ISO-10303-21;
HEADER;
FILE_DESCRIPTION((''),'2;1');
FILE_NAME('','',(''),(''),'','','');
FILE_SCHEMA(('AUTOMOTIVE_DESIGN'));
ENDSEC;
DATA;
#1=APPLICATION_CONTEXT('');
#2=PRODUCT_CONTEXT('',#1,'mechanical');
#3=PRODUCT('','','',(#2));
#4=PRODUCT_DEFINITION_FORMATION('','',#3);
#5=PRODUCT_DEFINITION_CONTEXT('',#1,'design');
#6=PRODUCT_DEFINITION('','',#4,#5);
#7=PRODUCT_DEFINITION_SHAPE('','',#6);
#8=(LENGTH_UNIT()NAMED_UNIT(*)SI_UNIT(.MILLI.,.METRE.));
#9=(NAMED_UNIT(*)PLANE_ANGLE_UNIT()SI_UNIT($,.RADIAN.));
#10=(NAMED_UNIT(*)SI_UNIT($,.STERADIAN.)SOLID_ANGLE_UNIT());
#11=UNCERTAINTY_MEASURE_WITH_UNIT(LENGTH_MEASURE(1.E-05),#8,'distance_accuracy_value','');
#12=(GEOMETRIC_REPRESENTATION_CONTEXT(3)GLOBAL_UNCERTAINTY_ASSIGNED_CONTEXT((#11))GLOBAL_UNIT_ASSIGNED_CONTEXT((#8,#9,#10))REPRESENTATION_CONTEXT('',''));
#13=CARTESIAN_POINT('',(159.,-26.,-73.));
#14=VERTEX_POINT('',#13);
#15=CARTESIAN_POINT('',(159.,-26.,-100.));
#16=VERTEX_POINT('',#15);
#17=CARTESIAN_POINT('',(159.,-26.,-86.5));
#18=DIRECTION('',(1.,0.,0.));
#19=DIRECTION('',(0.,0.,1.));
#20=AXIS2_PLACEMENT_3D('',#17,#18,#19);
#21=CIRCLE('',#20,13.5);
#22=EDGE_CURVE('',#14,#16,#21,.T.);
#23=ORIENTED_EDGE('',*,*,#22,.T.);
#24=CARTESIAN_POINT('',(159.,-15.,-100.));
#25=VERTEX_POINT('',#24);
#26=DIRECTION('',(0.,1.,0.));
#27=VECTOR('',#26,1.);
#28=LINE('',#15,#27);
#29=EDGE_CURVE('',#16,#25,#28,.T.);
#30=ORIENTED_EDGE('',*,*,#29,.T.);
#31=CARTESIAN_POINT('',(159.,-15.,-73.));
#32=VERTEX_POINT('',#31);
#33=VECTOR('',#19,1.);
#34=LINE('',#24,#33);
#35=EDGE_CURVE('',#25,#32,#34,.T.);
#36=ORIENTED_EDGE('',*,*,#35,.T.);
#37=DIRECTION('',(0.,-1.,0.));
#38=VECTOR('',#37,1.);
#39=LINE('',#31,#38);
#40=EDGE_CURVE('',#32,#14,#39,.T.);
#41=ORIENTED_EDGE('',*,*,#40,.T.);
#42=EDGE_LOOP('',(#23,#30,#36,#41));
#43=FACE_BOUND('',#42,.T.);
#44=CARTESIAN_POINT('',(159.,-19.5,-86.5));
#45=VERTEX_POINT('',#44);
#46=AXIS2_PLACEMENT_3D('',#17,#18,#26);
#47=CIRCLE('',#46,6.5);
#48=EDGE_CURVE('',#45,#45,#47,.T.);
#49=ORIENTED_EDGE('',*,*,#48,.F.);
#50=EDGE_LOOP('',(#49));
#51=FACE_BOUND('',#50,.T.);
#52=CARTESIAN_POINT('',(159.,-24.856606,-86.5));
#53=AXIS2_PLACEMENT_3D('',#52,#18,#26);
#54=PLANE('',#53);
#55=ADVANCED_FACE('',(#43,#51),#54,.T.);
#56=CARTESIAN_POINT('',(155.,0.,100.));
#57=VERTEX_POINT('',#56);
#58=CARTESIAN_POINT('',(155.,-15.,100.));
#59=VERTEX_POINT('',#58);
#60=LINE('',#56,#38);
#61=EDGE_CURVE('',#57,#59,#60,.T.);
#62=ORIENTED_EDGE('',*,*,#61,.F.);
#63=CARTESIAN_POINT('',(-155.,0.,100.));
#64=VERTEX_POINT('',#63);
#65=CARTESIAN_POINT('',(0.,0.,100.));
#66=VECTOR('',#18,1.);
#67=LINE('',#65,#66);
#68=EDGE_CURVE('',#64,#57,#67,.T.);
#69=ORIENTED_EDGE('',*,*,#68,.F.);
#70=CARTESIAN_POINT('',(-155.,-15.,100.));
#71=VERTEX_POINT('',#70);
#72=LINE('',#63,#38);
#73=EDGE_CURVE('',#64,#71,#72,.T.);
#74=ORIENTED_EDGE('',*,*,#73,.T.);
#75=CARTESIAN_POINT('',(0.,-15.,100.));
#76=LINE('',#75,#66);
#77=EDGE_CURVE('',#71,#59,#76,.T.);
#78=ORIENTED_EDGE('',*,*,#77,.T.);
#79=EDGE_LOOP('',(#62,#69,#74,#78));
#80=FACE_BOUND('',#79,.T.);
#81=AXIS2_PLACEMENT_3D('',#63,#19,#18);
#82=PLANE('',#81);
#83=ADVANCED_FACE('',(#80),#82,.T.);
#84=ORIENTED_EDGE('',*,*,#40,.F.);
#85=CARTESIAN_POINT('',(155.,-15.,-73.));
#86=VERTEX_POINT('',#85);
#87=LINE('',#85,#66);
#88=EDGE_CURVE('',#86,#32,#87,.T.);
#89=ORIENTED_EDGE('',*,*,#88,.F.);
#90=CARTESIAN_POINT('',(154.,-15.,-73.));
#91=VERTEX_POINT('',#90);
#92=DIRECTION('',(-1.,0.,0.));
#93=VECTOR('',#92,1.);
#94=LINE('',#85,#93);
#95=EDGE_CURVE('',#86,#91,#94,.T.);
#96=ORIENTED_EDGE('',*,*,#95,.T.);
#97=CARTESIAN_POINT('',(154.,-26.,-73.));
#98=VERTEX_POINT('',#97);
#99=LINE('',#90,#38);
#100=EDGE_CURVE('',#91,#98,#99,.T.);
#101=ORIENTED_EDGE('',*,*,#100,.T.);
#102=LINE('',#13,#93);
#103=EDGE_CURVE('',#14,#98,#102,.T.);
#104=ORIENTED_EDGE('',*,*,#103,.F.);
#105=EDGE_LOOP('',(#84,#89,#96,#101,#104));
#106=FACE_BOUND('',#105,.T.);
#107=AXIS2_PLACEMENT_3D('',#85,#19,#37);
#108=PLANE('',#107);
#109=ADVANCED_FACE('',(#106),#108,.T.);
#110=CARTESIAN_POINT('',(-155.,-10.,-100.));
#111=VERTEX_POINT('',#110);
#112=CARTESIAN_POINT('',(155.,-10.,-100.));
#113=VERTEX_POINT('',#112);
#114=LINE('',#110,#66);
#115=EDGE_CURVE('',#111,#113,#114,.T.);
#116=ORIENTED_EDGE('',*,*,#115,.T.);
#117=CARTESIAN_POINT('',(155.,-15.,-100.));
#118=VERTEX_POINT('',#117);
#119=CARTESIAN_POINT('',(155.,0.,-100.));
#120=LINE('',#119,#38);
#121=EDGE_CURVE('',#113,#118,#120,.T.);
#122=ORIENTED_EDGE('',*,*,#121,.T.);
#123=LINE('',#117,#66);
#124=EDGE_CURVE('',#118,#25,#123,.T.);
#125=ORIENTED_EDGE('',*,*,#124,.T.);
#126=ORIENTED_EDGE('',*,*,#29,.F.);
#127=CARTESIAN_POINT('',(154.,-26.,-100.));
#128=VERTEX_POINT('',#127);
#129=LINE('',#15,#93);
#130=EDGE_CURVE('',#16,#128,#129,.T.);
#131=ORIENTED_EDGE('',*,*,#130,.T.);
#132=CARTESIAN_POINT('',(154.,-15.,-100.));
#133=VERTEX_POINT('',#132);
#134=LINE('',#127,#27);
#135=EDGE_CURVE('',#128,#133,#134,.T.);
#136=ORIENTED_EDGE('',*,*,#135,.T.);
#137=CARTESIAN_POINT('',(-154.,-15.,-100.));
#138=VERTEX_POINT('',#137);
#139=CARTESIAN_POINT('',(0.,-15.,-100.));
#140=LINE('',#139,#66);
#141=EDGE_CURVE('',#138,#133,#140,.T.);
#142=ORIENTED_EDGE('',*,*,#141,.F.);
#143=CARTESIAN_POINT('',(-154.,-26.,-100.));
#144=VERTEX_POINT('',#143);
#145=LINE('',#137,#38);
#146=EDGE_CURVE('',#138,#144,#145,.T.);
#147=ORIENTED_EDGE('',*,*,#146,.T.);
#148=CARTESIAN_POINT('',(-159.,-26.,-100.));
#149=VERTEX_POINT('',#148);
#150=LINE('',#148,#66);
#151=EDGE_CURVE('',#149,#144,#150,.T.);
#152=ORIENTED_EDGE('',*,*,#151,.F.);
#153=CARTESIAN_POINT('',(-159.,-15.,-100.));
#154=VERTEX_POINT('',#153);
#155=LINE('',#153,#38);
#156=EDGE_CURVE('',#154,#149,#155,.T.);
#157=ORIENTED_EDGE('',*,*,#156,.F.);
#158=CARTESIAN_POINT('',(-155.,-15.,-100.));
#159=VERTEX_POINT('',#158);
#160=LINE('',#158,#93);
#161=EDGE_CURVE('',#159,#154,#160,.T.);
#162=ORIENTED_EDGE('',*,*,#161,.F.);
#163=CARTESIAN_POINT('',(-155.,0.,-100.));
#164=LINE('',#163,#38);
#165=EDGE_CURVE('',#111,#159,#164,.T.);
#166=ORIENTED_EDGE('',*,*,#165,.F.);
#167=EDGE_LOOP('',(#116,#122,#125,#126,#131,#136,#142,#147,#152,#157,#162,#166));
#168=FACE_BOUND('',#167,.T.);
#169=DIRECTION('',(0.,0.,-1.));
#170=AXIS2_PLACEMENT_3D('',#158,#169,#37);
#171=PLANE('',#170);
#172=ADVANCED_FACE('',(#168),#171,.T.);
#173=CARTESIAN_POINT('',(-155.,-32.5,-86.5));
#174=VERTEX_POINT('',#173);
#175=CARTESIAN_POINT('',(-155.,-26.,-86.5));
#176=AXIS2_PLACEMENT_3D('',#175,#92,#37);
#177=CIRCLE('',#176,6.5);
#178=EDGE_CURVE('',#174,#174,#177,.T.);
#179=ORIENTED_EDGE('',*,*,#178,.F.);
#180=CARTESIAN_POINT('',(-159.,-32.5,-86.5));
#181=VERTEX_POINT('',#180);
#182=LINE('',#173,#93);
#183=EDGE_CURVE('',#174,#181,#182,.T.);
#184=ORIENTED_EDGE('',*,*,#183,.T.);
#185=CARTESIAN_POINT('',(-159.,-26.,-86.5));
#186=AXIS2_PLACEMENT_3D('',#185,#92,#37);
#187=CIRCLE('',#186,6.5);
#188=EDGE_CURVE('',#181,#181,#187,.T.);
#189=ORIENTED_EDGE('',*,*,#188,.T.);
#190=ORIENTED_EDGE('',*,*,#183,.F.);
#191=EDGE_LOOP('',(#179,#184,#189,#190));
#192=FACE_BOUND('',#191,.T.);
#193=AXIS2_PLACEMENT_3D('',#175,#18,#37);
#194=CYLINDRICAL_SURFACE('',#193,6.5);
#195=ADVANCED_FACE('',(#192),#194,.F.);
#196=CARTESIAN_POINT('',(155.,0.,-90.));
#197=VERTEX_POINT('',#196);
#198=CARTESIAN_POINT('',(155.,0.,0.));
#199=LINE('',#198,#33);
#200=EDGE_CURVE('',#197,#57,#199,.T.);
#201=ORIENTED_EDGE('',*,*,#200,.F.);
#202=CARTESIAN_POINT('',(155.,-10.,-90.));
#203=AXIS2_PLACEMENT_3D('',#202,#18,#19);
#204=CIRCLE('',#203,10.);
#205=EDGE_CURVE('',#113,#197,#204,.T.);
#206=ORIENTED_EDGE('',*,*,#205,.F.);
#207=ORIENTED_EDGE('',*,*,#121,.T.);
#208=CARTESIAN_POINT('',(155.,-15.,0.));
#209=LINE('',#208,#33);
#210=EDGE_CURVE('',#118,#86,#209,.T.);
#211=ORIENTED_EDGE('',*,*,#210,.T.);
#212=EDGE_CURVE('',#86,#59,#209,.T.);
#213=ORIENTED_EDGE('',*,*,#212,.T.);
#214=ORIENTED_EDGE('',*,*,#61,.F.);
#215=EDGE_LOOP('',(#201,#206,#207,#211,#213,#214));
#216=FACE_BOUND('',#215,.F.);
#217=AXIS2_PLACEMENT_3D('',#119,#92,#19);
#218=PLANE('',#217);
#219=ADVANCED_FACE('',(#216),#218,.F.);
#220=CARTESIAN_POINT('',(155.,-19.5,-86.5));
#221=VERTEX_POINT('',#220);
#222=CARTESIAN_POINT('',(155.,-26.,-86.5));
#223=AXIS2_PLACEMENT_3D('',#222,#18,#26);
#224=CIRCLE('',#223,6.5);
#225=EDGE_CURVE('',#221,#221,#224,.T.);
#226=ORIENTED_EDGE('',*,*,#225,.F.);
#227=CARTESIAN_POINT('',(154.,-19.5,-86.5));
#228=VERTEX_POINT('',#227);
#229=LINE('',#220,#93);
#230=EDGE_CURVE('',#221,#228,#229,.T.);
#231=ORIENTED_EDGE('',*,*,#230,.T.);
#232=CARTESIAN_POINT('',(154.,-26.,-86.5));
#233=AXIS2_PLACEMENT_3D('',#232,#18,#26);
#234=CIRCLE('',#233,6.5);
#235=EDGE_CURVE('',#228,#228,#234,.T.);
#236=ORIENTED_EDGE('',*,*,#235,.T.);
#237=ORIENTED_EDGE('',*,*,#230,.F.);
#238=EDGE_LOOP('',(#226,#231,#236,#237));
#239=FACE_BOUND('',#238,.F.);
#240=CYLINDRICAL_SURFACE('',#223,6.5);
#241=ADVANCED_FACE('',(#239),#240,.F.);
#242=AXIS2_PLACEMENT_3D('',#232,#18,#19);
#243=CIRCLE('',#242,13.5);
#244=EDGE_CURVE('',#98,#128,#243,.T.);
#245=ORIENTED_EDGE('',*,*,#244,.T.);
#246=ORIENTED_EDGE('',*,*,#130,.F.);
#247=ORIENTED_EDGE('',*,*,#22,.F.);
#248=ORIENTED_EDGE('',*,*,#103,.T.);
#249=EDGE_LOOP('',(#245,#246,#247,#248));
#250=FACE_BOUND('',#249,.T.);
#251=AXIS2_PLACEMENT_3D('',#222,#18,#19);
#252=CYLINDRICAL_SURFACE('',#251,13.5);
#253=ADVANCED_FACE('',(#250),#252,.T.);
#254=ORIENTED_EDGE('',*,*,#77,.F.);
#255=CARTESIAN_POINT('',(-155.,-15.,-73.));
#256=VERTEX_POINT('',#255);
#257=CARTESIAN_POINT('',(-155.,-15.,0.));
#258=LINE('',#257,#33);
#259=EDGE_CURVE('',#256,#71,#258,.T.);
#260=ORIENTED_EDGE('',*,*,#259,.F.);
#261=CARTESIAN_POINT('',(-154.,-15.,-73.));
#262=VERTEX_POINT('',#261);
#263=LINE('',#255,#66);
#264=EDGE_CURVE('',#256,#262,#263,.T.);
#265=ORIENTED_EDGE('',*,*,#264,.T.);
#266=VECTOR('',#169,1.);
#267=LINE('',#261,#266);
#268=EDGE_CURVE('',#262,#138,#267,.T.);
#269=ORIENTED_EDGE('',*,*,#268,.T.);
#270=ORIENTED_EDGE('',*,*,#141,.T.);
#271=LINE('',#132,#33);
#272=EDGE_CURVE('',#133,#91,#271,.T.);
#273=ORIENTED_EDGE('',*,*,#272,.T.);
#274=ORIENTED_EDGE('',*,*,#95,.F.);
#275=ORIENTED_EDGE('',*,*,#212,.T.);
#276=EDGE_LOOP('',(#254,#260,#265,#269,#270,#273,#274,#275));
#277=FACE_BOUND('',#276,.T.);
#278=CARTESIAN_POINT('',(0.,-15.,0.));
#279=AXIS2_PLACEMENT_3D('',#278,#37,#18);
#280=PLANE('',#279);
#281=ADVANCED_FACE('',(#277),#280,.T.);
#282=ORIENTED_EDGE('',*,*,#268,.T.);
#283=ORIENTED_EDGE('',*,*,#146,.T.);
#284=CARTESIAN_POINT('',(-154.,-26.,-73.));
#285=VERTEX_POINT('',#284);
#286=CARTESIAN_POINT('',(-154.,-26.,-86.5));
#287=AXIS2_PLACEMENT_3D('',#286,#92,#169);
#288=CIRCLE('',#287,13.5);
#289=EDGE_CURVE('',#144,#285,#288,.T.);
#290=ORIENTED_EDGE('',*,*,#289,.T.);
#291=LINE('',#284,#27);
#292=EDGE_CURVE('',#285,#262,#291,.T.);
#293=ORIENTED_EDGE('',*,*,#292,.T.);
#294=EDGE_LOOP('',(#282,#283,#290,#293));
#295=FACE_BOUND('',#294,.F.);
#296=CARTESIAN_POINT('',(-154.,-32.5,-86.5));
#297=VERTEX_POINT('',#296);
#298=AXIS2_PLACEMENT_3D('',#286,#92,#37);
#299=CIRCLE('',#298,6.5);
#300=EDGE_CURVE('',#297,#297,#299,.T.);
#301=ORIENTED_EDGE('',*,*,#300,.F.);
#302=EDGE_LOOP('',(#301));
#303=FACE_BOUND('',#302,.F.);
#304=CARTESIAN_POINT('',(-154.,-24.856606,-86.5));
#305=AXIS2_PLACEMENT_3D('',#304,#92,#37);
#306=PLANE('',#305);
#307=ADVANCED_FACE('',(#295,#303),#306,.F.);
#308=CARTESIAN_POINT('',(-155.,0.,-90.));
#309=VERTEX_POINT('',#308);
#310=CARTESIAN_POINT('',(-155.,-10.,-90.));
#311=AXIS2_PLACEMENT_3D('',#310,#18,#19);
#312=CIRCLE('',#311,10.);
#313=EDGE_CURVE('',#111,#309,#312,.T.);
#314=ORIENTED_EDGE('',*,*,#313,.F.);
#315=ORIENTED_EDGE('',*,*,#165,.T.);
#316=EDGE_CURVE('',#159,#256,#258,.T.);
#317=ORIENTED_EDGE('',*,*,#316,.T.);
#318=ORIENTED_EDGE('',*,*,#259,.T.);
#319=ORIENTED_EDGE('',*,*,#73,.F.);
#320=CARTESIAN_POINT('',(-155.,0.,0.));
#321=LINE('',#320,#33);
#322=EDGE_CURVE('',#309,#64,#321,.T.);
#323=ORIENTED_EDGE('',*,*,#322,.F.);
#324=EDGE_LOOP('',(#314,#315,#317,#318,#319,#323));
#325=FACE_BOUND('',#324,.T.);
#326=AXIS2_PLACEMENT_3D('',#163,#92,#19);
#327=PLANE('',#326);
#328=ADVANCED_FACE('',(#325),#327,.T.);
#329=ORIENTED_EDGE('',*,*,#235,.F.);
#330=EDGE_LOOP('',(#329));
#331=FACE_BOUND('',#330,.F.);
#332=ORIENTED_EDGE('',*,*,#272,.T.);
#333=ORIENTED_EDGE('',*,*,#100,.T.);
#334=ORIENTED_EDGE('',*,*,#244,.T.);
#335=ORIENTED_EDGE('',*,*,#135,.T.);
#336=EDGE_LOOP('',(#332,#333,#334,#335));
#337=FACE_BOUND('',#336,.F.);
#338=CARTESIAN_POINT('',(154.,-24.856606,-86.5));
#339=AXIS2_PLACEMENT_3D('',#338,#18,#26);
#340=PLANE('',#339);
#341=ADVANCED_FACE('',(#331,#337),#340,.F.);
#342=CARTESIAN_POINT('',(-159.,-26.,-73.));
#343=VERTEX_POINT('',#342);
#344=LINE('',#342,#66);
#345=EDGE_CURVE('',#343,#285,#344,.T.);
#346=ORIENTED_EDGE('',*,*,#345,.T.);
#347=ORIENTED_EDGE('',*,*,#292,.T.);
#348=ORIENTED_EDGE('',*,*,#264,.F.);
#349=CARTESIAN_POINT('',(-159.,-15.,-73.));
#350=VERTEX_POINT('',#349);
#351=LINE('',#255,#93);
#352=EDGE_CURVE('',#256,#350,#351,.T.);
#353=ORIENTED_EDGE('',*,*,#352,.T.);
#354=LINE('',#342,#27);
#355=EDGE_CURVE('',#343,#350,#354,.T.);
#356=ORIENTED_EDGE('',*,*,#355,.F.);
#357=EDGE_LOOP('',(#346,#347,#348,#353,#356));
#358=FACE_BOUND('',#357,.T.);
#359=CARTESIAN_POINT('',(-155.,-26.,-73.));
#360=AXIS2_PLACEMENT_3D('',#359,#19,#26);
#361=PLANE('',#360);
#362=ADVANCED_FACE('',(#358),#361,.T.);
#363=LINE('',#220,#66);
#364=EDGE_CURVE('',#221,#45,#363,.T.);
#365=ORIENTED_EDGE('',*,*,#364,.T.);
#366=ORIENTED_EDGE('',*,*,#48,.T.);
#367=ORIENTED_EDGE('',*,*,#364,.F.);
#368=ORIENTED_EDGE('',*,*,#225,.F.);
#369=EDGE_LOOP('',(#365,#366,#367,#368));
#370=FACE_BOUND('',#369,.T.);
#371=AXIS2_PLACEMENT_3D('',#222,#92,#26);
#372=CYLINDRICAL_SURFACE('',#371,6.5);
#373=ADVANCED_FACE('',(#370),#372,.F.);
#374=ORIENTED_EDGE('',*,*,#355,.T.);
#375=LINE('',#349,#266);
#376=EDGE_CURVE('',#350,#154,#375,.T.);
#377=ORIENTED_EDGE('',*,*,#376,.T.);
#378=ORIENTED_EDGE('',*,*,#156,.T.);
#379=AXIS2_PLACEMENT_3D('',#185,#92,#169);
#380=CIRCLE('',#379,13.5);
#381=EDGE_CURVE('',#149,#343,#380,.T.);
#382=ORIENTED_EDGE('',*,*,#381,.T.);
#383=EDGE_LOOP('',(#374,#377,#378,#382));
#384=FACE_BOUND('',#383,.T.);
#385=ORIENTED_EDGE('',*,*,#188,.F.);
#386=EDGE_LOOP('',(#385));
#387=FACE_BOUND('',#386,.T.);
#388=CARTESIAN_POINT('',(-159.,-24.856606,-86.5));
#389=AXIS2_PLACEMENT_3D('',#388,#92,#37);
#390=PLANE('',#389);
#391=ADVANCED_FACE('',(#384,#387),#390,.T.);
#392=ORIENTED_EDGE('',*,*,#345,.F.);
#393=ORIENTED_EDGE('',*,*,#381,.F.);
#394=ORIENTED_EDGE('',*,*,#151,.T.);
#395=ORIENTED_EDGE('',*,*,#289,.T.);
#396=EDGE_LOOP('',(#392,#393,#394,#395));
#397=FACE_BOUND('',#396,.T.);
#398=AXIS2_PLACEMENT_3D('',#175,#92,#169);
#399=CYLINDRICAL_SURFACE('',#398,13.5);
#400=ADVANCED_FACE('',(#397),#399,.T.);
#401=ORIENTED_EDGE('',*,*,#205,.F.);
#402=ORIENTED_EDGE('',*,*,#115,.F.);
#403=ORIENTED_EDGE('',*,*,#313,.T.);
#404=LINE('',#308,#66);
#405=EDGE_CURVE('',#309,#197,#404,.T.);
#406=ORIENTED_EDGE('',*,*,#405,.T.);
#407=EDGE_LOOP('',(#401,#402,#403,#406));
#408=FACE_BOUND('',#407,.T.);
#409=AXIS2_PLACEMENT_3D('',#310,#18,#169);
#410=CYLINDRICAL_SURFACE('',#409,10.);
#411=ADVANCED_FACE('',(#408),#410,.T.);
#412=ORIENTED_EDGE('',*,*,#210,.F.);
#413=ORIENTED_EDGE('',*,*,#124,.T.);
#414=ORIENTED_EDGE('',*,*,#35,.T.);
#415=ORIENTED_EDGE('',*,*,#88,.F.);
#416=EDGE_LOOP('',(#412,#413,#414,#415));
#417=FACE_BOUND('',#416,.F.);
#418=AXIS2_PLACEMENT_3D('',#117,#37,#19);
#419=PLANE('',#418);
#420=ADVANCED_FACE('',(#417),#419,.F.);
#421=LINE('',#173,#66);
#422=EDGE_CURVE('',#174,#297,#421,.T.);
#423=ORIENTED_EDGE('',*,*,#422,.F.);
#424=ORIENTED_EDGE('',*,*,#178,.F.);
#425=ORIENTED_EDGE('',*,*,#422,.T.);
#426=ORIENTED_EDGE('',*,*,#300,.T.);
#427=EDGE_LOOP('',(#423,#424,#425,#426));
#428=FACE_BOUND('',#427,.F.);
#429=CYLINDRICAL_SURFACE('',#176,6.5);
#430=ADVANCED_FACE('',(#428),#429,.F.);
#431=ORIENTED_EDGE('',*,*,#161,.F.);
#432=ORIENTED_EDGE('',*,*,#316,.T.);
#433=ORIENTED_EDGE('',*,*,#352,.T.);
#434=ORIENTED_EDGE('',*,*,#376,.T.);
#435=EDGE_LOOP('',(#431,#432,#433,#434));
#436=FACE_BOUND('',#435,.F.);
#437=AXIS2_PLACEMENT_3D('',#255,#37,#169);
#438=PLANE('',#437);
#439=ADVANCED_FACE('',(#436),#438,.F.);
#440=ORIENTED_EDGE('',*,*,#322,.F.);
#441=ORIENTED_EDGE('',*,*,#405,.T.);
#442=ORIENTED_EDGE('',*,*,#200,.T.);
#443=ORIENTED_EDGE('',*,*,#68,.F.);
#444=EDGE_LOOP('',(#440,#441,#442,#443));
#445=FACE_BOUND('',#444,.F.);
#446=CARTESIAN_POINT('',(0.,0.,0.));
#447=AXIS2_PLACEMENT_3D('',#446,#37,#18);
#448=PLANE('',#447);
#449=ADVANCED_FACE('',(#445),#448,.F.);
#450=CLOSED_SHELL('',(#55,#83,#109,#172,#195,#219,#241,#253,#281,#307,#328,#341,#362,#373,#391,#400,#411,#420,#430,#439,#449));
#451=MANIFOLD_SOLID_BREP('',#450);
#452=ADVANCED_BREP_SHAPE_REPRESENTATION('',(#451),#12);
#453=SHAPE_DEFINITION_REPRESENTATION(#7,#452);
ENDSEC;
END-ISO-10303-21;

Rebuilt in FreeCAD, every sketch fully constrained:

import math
import FreeCAD as App
import Part
import Sketcher
from FreeCAD import Vector


def edges_at(feature, points):
    """Names of the edges that pass closest to the given points."""
    edges = feature.Shape.Edges
    near = lambda p: min(range(len(edges)), key=lambda i: edges[i].distToShape(Part.Vertex(*p))[0])
    return sorted({f"Edge{near(p) + 1}" for p in points})

doc = App.newDocument("Part")
params = doc.addObject("Spreadsheet::Sheet", "Params")
for row, (alias, value) in enumerate([
    ("sketch1_width", "310 mm"),
    ("sketch1_height", "200 mm"),
    ("pad1_length", "15 mm"),
    ("fillet_radius", "10 mm"),
    ("sketch2_diameter", "13 mm"),
    ("sketch2_radius", "13.5 mm"),
    ("sketch2_width", "11 mm"),
    ("pad2_length", "4 mm"),
    ("pad2_length2", "1 mm"),
    ("sketch3_diameter", "13 mm"),
    ("sketch3_radius", "13.5 mm"),
    ("sketch3_width", "11 mm"),
    ("pad3_length", "4 mm"),
    ("pad3_length2", "1 mm"),
], start=1):
    params.set(f"A{row}", alias)
    params.set(f"B{row}", "=" + value)
    params.setAlias(f"B{row}", alias)

body = doc.addObject("PartDesign::Body", "Body")

# Sketch on XZ plane
sketch1 = body.newObject("Sketcher::SketchObject", "Sketch")
sketch1.AttachmentSupport = (doc.getObject("XZ_Plane"), [""])
sketch1.MapMode = "FlatFace"
sketch1.addGeometry([
    Part.LineSegment(Vector(-155, 100, 0), Vector(-155, -100, 0)),
    Part.LineSegment(Vector(-155, -100, 0), Vector(155, -100, 0)),
    Part.LineSegment(Vector(155, -100, 0), Vector(155, 100, 0)),
    Part.LineSegment(Vector(155, 100, 0), Vector(-155, 100, 0)),
], False)
sketch1.addConstraint([
    Sketcher.Constraint("Coincident", 0, 2, 1, 1),
    Sketcher.Constraint("Coincident", 1, 2, 2, 1),
    Sketcher.Constraint("Coincident", 2, 2, 3, 1),
    Sketcher.Constraint("Coincident", 3, 2, 0, 1),
    Sketcher.Constraint("Vertical", 0),
    Sketcher.Constraint("Horizontal", 1),
    Sketcher.Constraint("Vertical", 2),
    Sketcher.Constraint("Horizontal", 3),
    Sketcher.Constraint("Symmetric", 0, 2, 2, 2, -1, 1),
    Sketcher.Constraint("DistanceX", 1, 1, 1, 2, 310.0),
    Sketcher.Constraint("DistanceY", 0, 2, 0, 1, 200.0),
])
sketch1.setExpression("Constraints[9]", "Params.sketch1_width")
sketch1.setExpression("Constraints[10]", "Params.sketch1_height")
pad1 = body.newObject("PartDesign::Pad", "Pad")
pad1.Profile = sketch1
pad1.setExpression("Length", "Params.pad1_length")
doc.recompute()

fillet = body.newObject("PartDesign::Fillet", "Fillet")
fillet.Base = (pad1, edges_at(pad1, [(0, 0, -100)]))
fillet.setExpression("Radius", "Params.fillet_radius")

# Sketch on YZ plane
sketch2 = body.newObject("Sketcher::SketchObject", "Sketch001")
sketch2.AttachmentSupport = (doc.getObject("YZ_Plane"), [""])
sketch2.MapMode = "FlatFace"
sketch2.AttachmentOffset = App.Placement(Vector(0, 0, 155), App.Rotation())
sketch2.addGeometry([
    Part.LineSegment(Vector(-26, -100, 0), Vector(-15, -100, 0)),  # 0
    Part.LineSegment(Vector(-15, -100, 0), Vector(-15, -73, 0)),  # 1
    Part.LineSegment(Vector(-15, -73, 0), Vector(-26, -73, 0)),  # 2
    Part.ArcOfCircle(Part.Circle(Vector(-26, -86.5, 0), Vector(0, 0, 1), 13.5), math.radians(90), math.radians(270)),  # 3
    Part.Circle(Vector(-26, -86.5, 0), Vector(0, 0, 1), 6.5),  # 4
], False)
sketch2.addConstraint([
    Sketcher.Constraint("Coincident", 0, 2, 1, 1),
    Sketcher.Constraint("Coincident", 1, 2, 2, 1),
    Sketcher.Constraint("Tangent", 2, 2, 3, 1),
    Sketcher.Constraint("Tangent", 3, 2, 0, 1),
    Sketcher.Constraint("Horizontal", 0),
    Sketcher.Constraint("Vertical", 1),
    Sketcher.Constraint("Horizontal", 2),
    Sketcher.Constraint("Coincident", 4, 3, 3, 3),
    Sketcher.Constraint("Diameter", 4, 13.0),
    Sketcher.Constraint("Radius", 3, 13.5),
    Sketcher.Constraint("DistanceX", 0, 1, 0, 2, 11.0),
    Sketcher.Constraint("DistanceX", 3, 3, -1, 1, 26.0),
    Sketcher.Constraint("DistanceY", 0, 2, -1, 1, 100.0),
])
sketch2.setExpression("Constraints[8]", "Params.sketch2_diameter")
sketch2.setExpression("Constraints[9]", "Params.sketch2_radius")
sketch2.setExpression("Constraints[10]", "Params.sketch2_width")
pad2 = body.newObject("PartDesign::Pad", "Pad001")
pad2.Profile = sketch2
pad2.Type = "TwoLengths"
pad2.setExpression("Length", "Params.pad2_length")
pad2.setExpression("Length2", "Params.pad2_length2")

# Sketch on YZ plane
sketch3 = body.newObject("Sketcher::SketchObject", "Sketch002")
sketch3.AttachmentSupport = (doc.getObject("YZ_Plane"), [""])
sketch3.MapMode = "FlatFace"
sketch3.AttachmentOffset = App.Placement(Vector(0, 0, -155), App.Rotation())
sketch3.addGeometry([
    Part.LineSegment(Vector(-26, -73, 0), Vector(-15, -73, 0)),  # 0
    Part.LineSegment(Vector(-15, -73, 0), Vector(-15, -100, 0)),  # 1
    Part.LineSegment(Vector(-15, -100, 0), Vector(-26, -100, 0)),  # 2
    Part.ArcOfCircle(Part.Circle(Vector(-26, -86.5, 0), Vector(0, 0, 1), 13.5), math.radians(90), math.radians(270)),  # 3
    Part.Circle(Vector(-26, -86.5, 0), Vector(0, 0, 1), 6.5),  # 4
], False)
sketch3.addConstraint([
    Sketcher.Constraint("Coincident", 0, 2, 1, 1),
    Sketcher.Constraint("Coincident", 1, 2, 2, 1),
    Sketcher.Constraint("Tangent", 2, 2, 3, 2),
    Sketcher.Constraint("Tangent", 3, 1, 0, 1),
    Sketcher.Constraint("Horizontal", 0),
    Sketcher.Constraint("Vertical", 1),
    Sketcher.Constraint("Horizontal", 2),
    Sketcher.Constraint("Coincident", 4, 3, 3, 3),
    Sketcher.Constraint("Diameter", 4, 13.0),
    Sketcher.Constraint("Radius", 3, 13.5),
    Sketcher.Constraint("DistanceX", 0, 1, 0, 2, 11.0),
    Sketcher.Constraint("DistanceX", 3, 3, -1, 1, 26.0),
    Sketcher.Constraint("DistanceY", 0, 2, -1, 1, 73.0),
])
sketch3.setExpression("Constraints[8]", "Params.sketch3_diameter")
sketch3.setExpression("Constraints[9]", "Params.sketch3_radius")
sketch3.setExpression("Constraints[10]", "Params.sketch3_width")
pad3 = body.newObject("PartDesign::Pad", "Pad002")
pad3.Profile = sketch3
pad3.Type = "TwoLengths"
pad3.setExpression("Length", "Params.pad3_length")
pad3.setExpression("Length2", "Params.pad3_length2")
pad3.Reversed = True

doc.recompute()
